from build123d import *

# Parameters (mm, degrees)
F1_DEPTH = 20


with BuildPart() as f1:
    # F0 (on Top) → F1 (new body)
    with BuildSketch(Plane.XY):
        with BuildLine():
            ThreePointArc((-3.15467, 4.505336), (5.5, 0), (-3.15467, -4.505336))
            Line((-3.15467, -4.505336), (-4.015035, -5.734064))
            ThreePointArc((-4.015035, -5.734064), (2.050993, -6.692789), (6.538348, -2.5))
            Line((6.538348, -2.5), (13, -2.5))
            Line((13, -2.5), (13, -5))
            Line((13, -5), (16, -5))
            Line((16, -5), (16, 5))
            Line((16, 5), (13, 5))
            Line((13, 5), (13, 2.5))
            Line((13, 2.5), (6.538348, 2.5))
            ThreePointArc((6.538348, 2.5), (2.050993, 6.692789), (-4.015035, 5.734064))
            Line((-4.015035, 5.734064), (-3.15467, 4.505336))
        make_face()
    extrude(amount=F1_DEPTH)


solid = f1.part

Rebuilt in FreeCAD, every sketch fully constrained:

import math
import FreeCAD as App
import Part
import Sketcher
Q = App.Units.Quantity

doc = App.newDocument("Part")
body = doc.addObject("PartDesign::Body", "Body")

# Sketch on XY plane
sketch1 = body.newObject("Sketcher::SketchObject", "Sketch")
sketch1.AttachmentSupport = (doc.getObject("XY_Plane"), [""])
sketch1.MapMode = "FlatFace"
sketch1.addGeometry(Part.ArcOfCircle(Part.Circle(App.Vector(0, 0, 0), App.Vector(0, 0, 1), 5.5), math.radians(-125), math.radians(125)), False)
sketch1.addGeometry(Part.LineSegment(App.Vector(-3.2, -4.5, 0), App.Vector(-4, -5.7, 0)), False)
sketch1.addGeometry(Part.ArcOfCircle(Part.Circle(App.Vector(0, 0, 0), App.Vector(0, 0, 1), 7), math.radians(-125), math.radians(-21)), False)
sketch1.addGeometry(Part.LineSegment(App.Vector(6.5, -2.5, 0), App.Vector(13, -2.5, 0)), False)
sketch1.addGeometry(Part.LineSegment(App.Vector(13, -2.5, 0), App.Vector(13, -5, 0)), False)
sketch1.addGeometry(Part.LineSegment(App.Vector(13, -5, 0), App.Vector(16, -5, 0)), False)
sketch1.addGeometry(Part.LineSegment(App.Vector(16, -5, 0), App.Vector(16, 5, 0)), False)
sketch1.addGeometry(Part.LineSegment(App.Vector(16, 5, 0), App.Vector(13, 5, 0)), False)
sketch1.addGeometry(Part.LineSegment(App.Vector(13, 5, 0), App.Vector(13, 2.5, 0)), False)
sketch1.addGeometry(Part.LineSegment(App.Vector(13, 2.5, 0), App.Vector(6.5, 2.5, 0)), False)
sketch1.addGeometry(Part.ArcOfCircle(Part.Circle(App.Vector(0, 0, 0), App.Vector(0, 0, 1), 7), math.radians(21), math.radians(125)), False)
sketch1.addGeometry(Part.LineSegment(App.Vector(-4, 5.7, 0), App.Vector(-3.2, 4.5, 0)), False)
sketch1.addConstraint(Sketcher.Constraint("Coincident", 0, 1, 1, 1))
sketch1.addConstraint(Sketcher.Constraint("Coincident", 1, 2, 2, 1))
sketch1.addConstraint(Sketcher.Constraint("Coincident", 2, 2, 3, 1))
sketch1.addConstraint(Sketcher.Constraint("Coincident", 3, 2, 4, 1))
sketch1.addConstraint(Sketcher.Constraint("Coincident", 4, 2, 5, 1))
sketch1.addConstraint(Sketcher.Constraint("Coincident", 5, 2, 6, 1))
sketch1.addConstraint(Sketcher.Constraint("Coincident", 6, 2, 7, 1))
sketch1.addConstraint(Sketcher.Constraint("Coincident", 7, 2, 8, 1))
sketch1.addConstraint(Sketcher.Constraint("Coincident", 8, 2, 9, 1))
sketch1.addConstraint(Sketcher.Constraint("Coincident", 9, 2, 10, 1))
sketch1.addConstraint(Sketcher.Constraint("Coincident", 10, 2, 11, 1))
sketch1.addConstraint(Sketcher.Constraint("Coincident", 11, 2, 0, 2))
sketch1.addConstraint(Sketcher.Constraint("Horizontal", 3))
sketch1.addConstraint(Sketcher.Constraint("Vertical", 4))
sketch1.addConstraint(Sketcher.Constraint("Horizontal", 5))
sketch1.addConstraint(Sketcher.Constraint("Vertical", 6))
sketch1.addConstraint(Sketcher.Constraint("Horizontal", 7))
sketch1.addConstraint(Sketcher.Constraint("Vertical", 8))
sketch1.addConstraint(Sketcher.Constraint("Horizontal", 9))
sketch1.addConstraint(Sketcher.Constraint("Coincident", 0, 3, -1, 1))
sketch1.addConstraint(Sketcher.Constraint("Coincident", 2, 3, -1, 1))
sketch1.addConstraint(Sketcher.Constraint("Coincident", 10, 3, -1, 1))
sketch1.addConstraint(Sketcher.Constraint("Equal", 2, 10))
sketch1.addConstraint(Sketcher.Constraint("Symmetric", 4, 2, 7, 2, -1))
sketch1.addConstraint(Sketcher.Constraint("Vertical", 2, 2, 9, 2))
sketch1.addConstraint(Sketcher.Constraint("Vertical", 1, 2, 10, 2))
sketch1.addConstraint(Sketcher.Constraint("Vertical", 0, 1, 11, 2))
sketch1.addConstraint(Sketcher.Constraint("Radius", 2, 6.999999))
sketch1.addConstraint(Sketcher.Constraint("Radius", 0, 5.5))
sketch1.addConstraint(Sketcher.Constraint("DistanceX", 5, 1, 5, 2, 3.0))
sketch1.addConstraint(Sketcher.Constraint("DistanceY", 6, 1, 6, 2, 10.0))
sketch1.addConstraint(Sketcher.Constraint("Angle", 1, Q("-125.000012 deg")))
sketch1.addConstraint(Sketcher.Constraint("DistanceY", 4, 2, 4, 1, 2.5))
sketch1.addConstraint(Sketcher.Constraint("DistanceX", -1, 1, 3, 2, 13.0))
sketch1.addConstraint(Sketcher.Constraint("DistanceY", 0, 1, 10, 2, 10.2394))
pad1 = body.newObject("PartDesign::Pad", "Pad")
pad1.Profile = sketch1
pad1.Length = 20

doc.recompute()
